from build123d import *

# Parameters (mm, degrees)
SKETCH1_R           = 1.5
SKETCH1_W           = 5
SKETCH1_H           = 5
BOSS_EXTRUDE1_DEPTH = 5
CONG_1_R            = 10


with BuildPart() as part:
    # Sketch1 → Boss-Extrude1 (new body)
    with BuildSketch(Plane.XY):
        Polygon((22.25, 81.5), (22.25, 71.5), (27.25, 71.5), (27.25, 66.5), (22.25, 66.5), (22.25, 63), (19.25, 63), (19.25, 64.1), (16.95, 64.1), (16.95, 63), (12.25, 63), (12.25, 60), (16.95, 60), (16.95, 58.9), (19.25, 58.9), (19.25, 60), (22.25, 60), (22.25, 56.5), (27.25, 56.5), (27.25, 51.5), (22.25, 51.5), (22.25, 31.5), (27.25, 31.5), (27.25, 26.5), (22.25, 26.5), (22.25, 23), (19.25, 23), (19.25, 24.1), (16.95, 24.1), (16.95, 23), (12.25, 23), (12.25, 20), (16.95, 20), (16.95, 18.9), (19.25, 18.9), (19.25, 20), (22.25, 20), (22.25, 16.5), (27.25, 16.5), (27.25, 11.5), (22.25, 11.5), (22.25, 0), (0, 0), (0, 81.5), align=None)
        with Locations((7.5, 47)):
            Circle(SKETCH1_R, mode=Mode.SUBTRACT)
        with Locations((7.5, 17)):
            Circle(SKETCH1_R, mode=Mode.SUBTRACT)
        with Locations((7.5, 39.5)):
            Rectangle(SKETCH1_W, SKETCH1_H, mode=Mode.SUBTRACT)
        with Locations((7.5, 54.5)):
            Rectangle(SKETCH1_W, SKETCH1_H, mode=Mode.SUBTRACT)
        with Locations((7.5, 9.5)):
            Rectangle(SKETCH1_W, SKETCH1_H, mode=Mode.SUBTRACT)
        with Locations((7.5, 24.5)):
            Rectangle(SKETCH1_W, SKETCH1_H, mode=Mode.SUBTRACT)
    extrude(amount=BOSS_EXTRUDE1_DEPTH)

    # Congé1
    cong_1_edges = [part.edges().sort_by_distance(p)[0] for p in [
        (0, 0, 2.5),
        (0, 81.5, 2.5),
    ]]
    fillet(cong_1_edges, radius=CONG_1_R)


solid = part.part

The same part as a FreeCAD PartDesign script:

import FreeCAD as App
import Part
import Sketcher
from FreeCAD import Vector


def edges_at(feature, points):
    """Names of the edges that pass closest to the given points."""
    edges = feature.Shape.Edges
    near = lambda p: min(range(len(edges)), key=lambda i: edges[i].distToShape(Part.Vertex(*p))[0])
    return sorted({f"Edge{near(p) + 1}" for p in points})

doc = App.newDocument("Part")
body = doc.addObject("PartDesign::Body", "Body")

# Sketch on XY plane
sketch1 = body.newObject("Sketcher::SketchObject", "Sketch")
sketch1.AttachmentSupport = (doc.getObject("XY_Plane"), [""])
sketch1.MapMode = "FlatFace"
sketch1.addGeometry([
    Part.LineSegment(Vector(22.25, 71.5, 0), Vector(22.25, 81.5, 0)),  # 0
    Part.LineSegment(Vector(22.25, 81.5, 0), Vector(0, 81.5, 0)),  # 1
    Part.LineSegment(Vector(0, 81.5, 0), Vector(0, 0, 0)),  # 2
    Part.LineSegment(Vector(0, 0, 0), Vector(22.25, 0, 0)),  # 3
    Part.LineSegment(Vector(22.25, 0, 0), Vector(22.25, 11.5, 0)),  # 4
    Part.LineSegment(Vector(22.25, 11.5, 0), Vector(27.25, 11.5, 0)),  # 5
    Part.LineSegment(Vector(27.25, 11.5, 0), Vector(27.25, 16.5, 0)),  # 6
    Part.LineSegment(Vector(27.25, 16.5, 0), Vector(22.25, 16.5, 0)),  # 7
    Part.LineSegment(Vector(22.25, 16.5, 0), Vector(22.25, 20, 0)),  # 8
    Part.LineSegment(Vector(22.25, 20, 0), Vector(19.25, 20, 0)),  # 9
    Part.LineSegment(Vector(19.25, 20, 0), Vector(19.25, 18.9, 0)),  # 10
    Part.LineSegment(Vector(19.25, 18.9, 0), Vector(16.95, 18.9, 0)),  # 11
    Part.LineSegment(Vector(16.95, 18.9, 0), Vector(16.95, 20, 0)),  # 12
    Part.LineSegment(Vector(16.95, 20, 0), Vector(12.25, 20, 0)),  # 13
    Part.LineSegment(Vector(12.25, 20, 0), Vector(12.25, 23, 0)),  # 14
    Part.LineSegment(Vector(12.25, 23, 0), Vector(16.95, 23, 0)),  # 15
    Part.LineSegment(Vector(16.95, 23, 0), Vector(16.95, 24.1, 0)),  # 16
    Part.LineSegment(Vector(16.95, 24.1, 0), Vector(19.25, 24.1, 0)),  # 17
    Part.LineSegment(Vector(19.25, 24.1, 0), Vector(19.25, 23, 0)),  # 18
    Part.LineSegment(Vector(19.25, 23, 0), Vector(22.25, 23, 0)),  # 19
    Part.LineSegment(Vector(22.25, 23, 0), Vector(22.25, 26.5, 0)),  # 20
    Part.LineSegment(Vector(22.25, 26.5, 0), Vector(27.25, 26.5, 0)),  # 21
    Part.LineSegment(Vector(27.25, 26.5, 0), Vector(27.25, 31.5, 0)),  # 22
    Part.LineSegment(Vector(27.25, 31.5, 0), Vector(22.25, 31.5, 0)),  # 23
    Part.LineSegment(Vector(22.25, 31.5, 0), Vector(22.25, 51.5, 0)),  # 24
    Part.LineSegment(Vector(22.25, 51.5, 0), Vector(27.25, 51.5, 0)),  # 25
    Part.LineSegment(Vector(27.25, 51.5, 0), Vector(27.25, 56.5, 0)),  # 26
    Part.LineSegment(Vector(27.25, 56.5, 0), Vector(22.25, 56.5, 0)),  # 27
    Part.LineSegment(Vector(22.25, 56.5, 0), Vector(22.25, 60, 0)),  # 28
    Part.LineSegment(Vector(22.25, 60, 0), Vector(19.25, 60, 0)),  # 29
    Part.LineSegment(Vector(19.25, 60, 0), Vector(19.25, 58.9, 0)),  # 30
    Part.LineSegment(Vector(19.25, 58.9, 0), Vector(16.95, 58.9, 0)),  # 31
    Part.LineSegment(Vector(16.95, 58.9, 0), Vector(16.95, 60, 0)),  # 32
    Part.LineSegment(Vector(16.95, 60, 0), Vector(12.25, 60, 0)),  # 33
    Part.LineSegment(Vector(12.25, 60, 0), Vector(12.25, 63, 0)),  # 34
    Part.LineSegment(Vector(12.25, 63, 0), Vector(16.95, 63, 0)),  # 35
    Part.LineSegment(Vector(16.95, 63, 0), Vector(16.95, 64.1, 0)),  # 36
    Part.LineSegment(Vector(16.95, 64.1, 0), Vector(19.25, 64.1, 0)),  # 37
    Part.LineSegment(Vector(19.25, 64.1, 0), Vector(19.25, 63, 0)),  # 38
    Part.LineSegment(Vector(19.25, 63, 0), Vector(22.25, 63, 0)),  # 39
    Part.LineSegment(Vector(22.25, 63, 0), Vector(22.25, 66.5, 0)),  # 40
    Part.LineSegment(Vector(22.25, 66.5, 0), Vector(27.25, 66.5, 0)),  # 41
    Part.LineSegment(Vector(27.25, 66.5, 0), Vector(27.25, 71.5, 0)),  # 42
    Part.LineSegment(Vector(27.25, 71.5, 0), Vector(22.25, 71.5, 0)),  # 43
    Part.LineSegment(Vector(5, 7, 0), Vector(5, 12, 0)),  # 44
    Part.LineSegment(Vector(5, 12, 0), Vector(10, 12, 0)),  # 45
    Part.LineSegment(Vector(10, 12, 0), Vector(10, 7, 0)),  # 46
    Part.LineSegment(Vector(10, 7, 0), Vector(5, 7, 0)),  # 47
    Part.Circle(Vector(7.5, 17, 0), Vector(0, 0, 1), 1.5),  # 48
    Part.LineSegment(Vector(5, 22, 0), Vector(5, 27, 0)),  # 49
    Part.LineSegment(Vector(5, 27, 0), Vector(10, 27, 0)),  # 50
    Part.LineSegment(Vector(10, 27, 0), Vector(10, 22, 0)),  # 51
    Part.LineSegment(Vector(10, 22, 0), Vector(5, 22, 0)),  # 52
    Part.LineSegment(Vector(5, 37, 0), Vector(5, 42, 0)),  # 53
    Part.LineSegment(Vector(5, 42, 0), Vector(10, 42, 0)),  # 54
    Part.LineSegment(Vector(10, 42, 0), Vector(10, 37, 0)),  # 55
    Part.LineSegment(Vector(10, 37, 0), Vector(5, 37, 0)),  # 56
    Part.Circle(Vector(7.5, 47, 0), Vector(0, 0, 1), 1.5),  # 57
    Part.LineSegment(Vector(5, 52, 0), Vector(5, 57, 0)),  # 58
    Part.LineSegment(Vector(5, 57, 0), Vector(10, 57, 0)),  # 59
    Part.LineSegment(Vector(10, 57, 0), Vector(10, 52, 0)),  # 60
    Part.LineSegment(Vector(10, 52, 0), Vector(5, 52, 0)),  # 61
], False)
sketch1.addConstraint([
    Sketcher.Constraint("Coincident", 0, 2, 1, 1),
    Sketcher.Constraint("Coincident", 1, 2, 2, 1),
    Sketcher.Constraint("Coincident", 2, 2, 3, 1),
    Sketcher.Constraint("Coincident", 3, 2, 4, 1),
    Sketcher.Constraint("Coincident", 4, 2, 5, 1),
    Sketcher.Constraint("Coincident", 5, 2, 6, 1),
    Sketcher.Constraint("Coincident", 6, 2, 7, 1),
    Sketcher.Constraint("Coincident", 7, 2, 8, 1),
    Sketcher.Constraint("Coincident", 8, 2, 9, 1),
    Sketcher.Constraint("Coincident", 9, 2, 10, 1),
    Sketcher.Constraint("Coincident", 10, 2, 11, 1),
    Sketcher.Constraint("Coincident", 11, 2, 12, 1),
    Sketcher.Constraint("Coincident", 12, 2, 13, 1),
    Sketcher.Constraint("Coincident", 13, 2, 14, 1),
    Sketcher.Constraint("Coincident", 14, 2, 15, 1),
    Sketcher.Constraint("Coincident", 15, 2, 16, 1),
    Sketcher.Constraint("Coincident", 16, 2, 17, 1),
    Sketcher.Constraint("Coincident", 17, 2, 18, 1),
    Sketcher.Constraint("Coincident", 18, 2, 19, 1),
    Sketcher.Constraint("Coincident", 19, 2, 20, 1),
    Sketcher.Constraint("Coincident", 20, 2, 21, 1),
    Sketcher.Constraint("Coincident", 21, 2, 22, 1),
    Sketcher.Constraint("Coincident", 22, 2, 23, 1),
    Sketcher.Constraint("Coincident", 23, 2, 24, 1),
    Sketcher.Constraint("Coincident", 24, 2, 25, 1),
    Sketcher.Constraint("Coincident", 25, 2, 26, 1),
    Sketcher.Constraint("Coincident", 26, 2, 27, 1),
    Sketcher.Constraint("Coincident", 27, 2, 28, 1),
    Sketcher.Constraint("Coincident", 28, 2, 29, 1),
    Sketcher.Constraint("Coincident", 29, 2, 30, 1),
    Sketcher.Constraint("Coincident", 30, 2, 31, 1),
    Sketcher.Constraint("Coincident", 31, 2, 32, 1),
    Sketcher.Constraint("Coincident", 32, 2, 33, 1),
    Sketcher.Constraint("Coincident", 33, 2, 34, 1),
    Sketcher.Constraint("Coincident", 34, 2, 35, 1),
    Sketcher.Constraint("Coincident", 35, 2, 36, 1),
    Sketcher.Constraint("Coincident", 36, 2, 37, 1),
    Sketcher.Constraint("Coincident", 37, 2, 38, 1),
    Sketcher.Constraint("Coincident", 38, 2, 39, 1),
    Sketcher.Constraint("Coincident", 39, 2, 40, 1),
    Sketcher.Constraint("Coincident", 40, 2, 41, 1),
    Sketcher.Constraint("Coincident", 41, 2, 42, 1),
    Sketcher.Constraint("Coincident", 42, 2, 43, 1),
    Sketcher.Constraint("Coincident", 43, 2, 0, 1),
    Sketcher.Constraint("Coincident", 44, 2, 45, 1),
    Sketcher.Constraint("Coincident", 45, 2, 46, 1),
    Sketcher.Constraint("Coincident", 46, 2, 47, 1),
    Sketcher.Constraint("Coincident", 47, 2, 44, 1),
    Sketcher.Constraint("Coincident", 49, 2, 50, 1),
    Sketcher.Constraint("Coincident", 50, 2, 51, 1),
    Sketcher.Constraint("Coincident", 51, 2, 52, 1),
    Sketcher.Constraint("Coincident", 52, 2, 49, 1),
    Sketcher.Constraint("Coincident", 53, 2, 54, 1),
    Sketcher.Constraint("Coincident", 54, 2, 55, 1),
    Sketcher.Constraint("Coincident", 55, 2, 56, 1),
    Sketcher.Constraint("Coincident", 56, 2, 53, 1),
    Sketcher.Constraint("Coincident", 58, 2, 59, 1),
    Sketcher.Constraint("Coincident", 59, 2, 60, 1),
    Sketcher.Constraint("Coincident", 60, 2, 61, 1),
    Sketcher.Constraint("Coincident", 61, 2, 58, 1),
    Sketcher.Constraint("Vertical", 0),
    Sketcher.Constraint("Horizontal", 1),
    Sketcher.Constraint("Vertical", 2),
    Sketcher.Constraint("Horizontal", 3),
    Sketcher.Constraint("Vertical", 4),
    Sketcher.Constraint("Horizontal", 5),
    Sketcher.Constraint("Vertical", 6),
    Sketcher.Constraint("Horizontal", 7),
    Sketcher.Constraint("Vertical", 8),
    Sketcher.Constraint("Horizontal", 9),
    Sketcher.Constraint("Vertical", 10),
    Sketcher.Constraint("Horizontal", 11),
    Sketcher.Constraint("Vertical", 12),
    Sketcher.Constraint("Horizontal", 13),
    Sketcher.Constraint("Vertical", 14),
    Sketcher.Constraint("Horizontal", 15),
    Sketcher.Constraint("Vertical", 16),
    Sketcher.Constraint("Horizontal", 17),
    Sketcher.Constraint("Vertical", 18),
    Sketcher.Constraint("Horizontal", 19),
    Sketcher.Constraint("Vertical", 20),
    Sketcher.Constraint("Horizontal", 21),
    Sketcher.Constraint("Vertical", 22),
    Sketcher.Constraint("Horizontal", 23),
    Sketcher.Constraint("Vertical", 24),
    Sketcher.Constraint("Horizontal", 25),
    Sketcher.Constraint("Vertical", 26),
    Sketcher.Constraint("Horizontal", 27),
    Sketcher.Constraint("Vertical", 28),
    Sketcher.Constraint("Horizontal", 29),
    Sketcher.Constraint("Vertical", 30),
    Sketcher.Constraint("Horizontal", 31),
    Sketcher.Constraint("Vertical", 32),
    Sketcher.Constraint("Horizontal", 33),
    Sketcher.Constraint("Vertical", 34),
    Sketcher.Constraint("Horizontal", 35),
    Sketcher.Constraint("Vertical", 36),
    Sketcher.Constraint("Horizontal", 37),
    Sketcher.Constraint("Vertical", 38),
    Sketcher.Constraint("Horizontal", 39),
    Sketcher.Constraint("Vertical", 40),
    Sketcher.Constraint("Horizontal", 41),
    Sketcher.Constraint("Vertical", 42),
    Sketcher.Constraint("Horizontal", 43),
    Sketcher.Constraint("Vertical", 44),
    Sketcher.Constraint("Horizontal", 45),
    Sketcher.Constraint("Vertical", 46),
    Sketcher.Constraint("Horizontal", 47),
    Sketcher.Constraint("Vertical", 49),
    Sketcher.Constraint("Horizontal", 50),
    Sketcher.Constraint("Vertical", 51),
    Sketcher.Constraint("Horizontal", 52),
    Sketcher.Constraint("Vertical", 53),
    Sketcher.Constraint("Horizontal", 54),
    Sketcher.Constraint("Vertical", 55),
    Sketcher.Constraint("Horizontal", 56),
    Sketcher.Constraint("Vertical", 58),
    Sketcher.Constraint("Horizontal", 59),
    Sketcher.Constraint("Vertical", 60),
    Sketcher.Constraint("Horizontal", 61),
    Sketcher.Constraint("Coincident", 2, 2, -1, 1),
    Sketcher.Constraint("Equal", 48, 57),
    Sketcher.Constraint("Horizontal", 9, 2, 12, 2),
    Sketcher.Constraint("Horizontal", 15, 2, 18, 2),
    Sketcher.Constraint("Horizontal", 29, 2, 32, 2),
    Sketcher.Constraint("Horizontal", 35, 2, 38, 2),
    Sketcher.Constraint("Vertical", 48, 3, 57, 3),
    Sketcher.Constraint("Vertical", 0, 2, 3, 2),
    Sketcher.Constraint("Vertical", 4, 2, 7, 2),
    Sketcher.Constraint("Vertical", 12, 2, 15, 2),
    Sketcher.Constraint("Vertical", 10, 2, 17, 2),
    Sketcher.Constraint("Vertical", 8, 2, 19, 2),
    Sketcher.Constraint("Vertical", 6, 2, 21, 2),
    Sketcher.Constraint("Vertical", 20, 2, 23, 2),
    Sketcher.Constraint("Vertical", 22, 2, 25, 2),
    Sketcher.Constraint("Vertical", 24, 2, 27, 2),
    Sketcher.Constraint("Vertical", 18, 2, 29, 2),
    Sketcher.Constraint("Vertical", 16, 2, 31, 2),
    Sketcher.Constraint("Vertical", 14, 2, 33, 2),
    Sketcher.Constraint("Vertical", 32, 2, 35, 2),
    Sketcher.Constraint("Vertical", 30, 2, 37, 2),
    Sketcher.Constraint("Vertical", 28, 2, 39, 2),
    Sketcher.Constraint("Vertical", 26, 2, 41, 2),
    Sketcher.Constraint("Vertical", 47, 2, 49, 2),
    Sketcher.Constraint("Vertical", 46, 2, 50, 2),
    Sketcher.Constraint("Vertical", 52, 2, 53, 2),
    Sketcher.Constraint("Vertical", 51, 2, 54, 2),
    Sketcher.Constraint("Vertical", 56, 2, 58, 2),
    Sketcher.Constraint("Vertical", 55, 2, 59, 2),
    Sketcher.Constraint("Equal", 43, 45),
    Sketcher.Constraint("Equal", 61, 6),
    Sketcher.Constraint("Equal", 39, 14),
    Sketcher.Constraint("Equal", 12, 16),
    Sketcher.Constraint("Equal", 8, 20),
    Sketcher.Constraint("Equal", 6, 22),
    Sketcher.Constraint("Equal", 22, 26),
    Sketcher.Constraint("Equal", 20, 28),
    Sketcher.Constraint("Equal", 18, 30),
    Sketcher.Constraint("Equal", 14, 34),
    Sketcher.Constraint("Equal", 32, 36),
    Sketcher.Constraint("Equal", 28, 40),
    Sketcher.Constraint("Equal", 26, 42),
    Sketcher.Constraint("Equal", 42, 44),
    Sketcher.Constraint("Equal", 46, 49),
    Sketcher.Constraint("Equal", 51, 53),
    Sketcher.Constraint("Equal", 55, 58),
    Sketcher.Constraint("Diameter", 48, 3.0),
    Sketcher.Constraint("DistanceX", 5, 1, 5, 2, 5.0),
    Sketcher.Constraint("DistanceX", 9, 2, 9, 1, 3.0),
    Sketcher.Constraint("DistanceY", 0, 1, 0, 2, 10.0),
    Sketcher.Constraint("DistanceY", 24, 1, 24, 2, 20.0),
    Sketcher.Constraint("DistanceX", 11, 2, 11, 1, 2.3),
    Sketcher.Constraint("DistanceX", 13, 2, 13, 1, 4.7),
    Sketcher.Constraint("DistanceY", 2, 2, 2, 1, 81.5),
    Sketcher.Constraint("DistanceY", 4, 1, 4, 2, 11.5),
    Sketcher.Constraint("DistanceY", 10, 2, 10, 1, 1.1),
    Sketcher.Constraint("DistanceY", -1, 1, 48, 3, 17.0),
    Sketcher.Constraint("DistanceY", -1, 1, 57, 3, 47.0),
    Sketcher.Constraint("DistanceX", -1, 1, 44, 2, 5.0),
    Sketcher.Constraint("DistanceY", -1, 1, 44, 2, 12.0),
    Sketcher.Constraint("DistanceY", -1, 1, 49, 2, 27.0),
    Sketcher.Constraint("DistanceY", -1, 1, 53, 2, 42.0),
    Sketcher.Constraint("DistanceY", -1, 1, 58, 2, 57.0),
    Sketcher.Constraint("DistanceX", 1, 2, 1, 1, 22.25),
    Sketcher.Constraint("DistanceX", -1, 1, 48, 3, 7.5),
])
pad1 = body.newObject("PartDesign::Pad", "Pad")
pad1.Profile = sketch1
pad1.Length = 5
doc.recompute()

fillet = body.newObject("PartDesign::Fillet", "Fillet")
fillet.Base = (pad1, edges_at(pad1, [(0, 0, 2.5), (0, 81.5, 2.5)]))
fillet.Radius = 10

doc.recompute()
